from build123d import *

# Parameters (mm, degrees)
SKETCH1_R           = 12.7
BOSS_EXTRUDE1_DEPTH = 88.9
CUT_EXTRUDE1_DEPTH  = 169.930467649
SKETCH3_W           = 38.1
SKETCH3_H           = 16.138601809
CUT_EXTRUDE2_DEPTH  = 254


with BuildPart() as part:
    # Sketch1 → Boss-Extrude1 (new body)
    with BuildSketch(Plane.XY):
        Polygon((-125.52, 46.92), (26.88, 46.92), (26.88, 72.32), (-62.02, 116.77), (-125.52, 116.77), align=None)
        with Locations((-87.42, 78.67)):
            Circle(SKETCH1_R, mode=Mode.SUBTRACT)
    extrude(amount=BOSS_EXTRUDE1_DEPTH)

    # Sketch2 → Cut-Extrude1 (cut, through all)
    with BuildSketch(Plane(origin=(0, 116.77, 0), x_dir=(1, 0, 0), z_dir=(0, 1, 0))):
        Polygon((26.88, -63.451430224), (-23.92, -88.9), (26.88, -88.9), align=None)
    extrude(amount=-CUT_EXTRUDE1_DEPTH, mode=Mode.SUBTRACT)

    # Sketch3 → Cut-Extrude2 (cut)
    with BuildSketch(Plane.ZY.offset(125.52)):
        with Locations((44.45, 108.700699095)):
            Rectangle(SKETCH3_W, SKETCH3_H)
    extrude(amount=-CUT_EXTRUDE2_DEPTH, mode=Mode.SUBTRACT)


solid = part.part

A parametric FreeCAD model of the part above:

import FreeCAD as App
import Part
import Sketcher
from FreeCAD import Vector
Q = App.Units.Quantity


def add_polygon(sketch, points):
    """Adds a closed chain of lines whose ends are joined by coincident constraints."""
    first, n = sketch.GeometryCount, len(points)
    for a, b in zip(points, points[1:] + points[:1]):
        sketch.addGeometry(Part.LineSegment(App.Vector(*a, 0), App.Vector(*b, 0)), False)
    for i in range(n):
        sketch.addConstraint(Sketcher.Constraint("Coincident", first + i, 2, first + (i + 1) % n, 1))

doc = App.newDocument("Part")
body = doc.addObject("PartDesign::Body", "Body")

# Sketch on XY plane
sketch1 = doc.addObject("Sketcher::SketchObject", "Sketch")
body.addObject(sketch1)
sketch1.AttachmentSupport = (doc.XY_Plane, [""])
sketch1.MapMode = "FlatFace"
add_polygon(sketch1, [(-125.52, 46.92), (26.88, 46.92), (26.88, 72.32), (-62.02, 116.77), (-125.52, 116.77)])  # lines 0-4
sketch1.addGeometry(Part.Circle(Vector(-87.42, 78.67, 0), Vector(0, 0, 1), 12.7), False)  # 5
sketch1.addConstraint([
    Sketcher.Constraint("Horizontal", 0),
    Sketcher.Constraint("Vertical", 1),
    Sketcher.Constraint("Horizontal", 3),
    Sketcher.Constraint("Vertical", 4),
    Sketcher.Constraint("Diameter", 5, Q("1 in")),
    Sketcher.Constraint("DistanceX", 0, 1, 0, 2, Q("6 in")),
    Sketcher.Constraint("DistanceY", 1, 1, 1, 2, Q("1 in")),
    Sketcher.Constraint("DistanceX", 3, 2, 3, 1, Q("2.5 in")),
    Sketcher.Constraint("DistanceX", 5, 3, 2, 2, Q("1 in")),
    Sketcher.Constraint("DistanceY", 4, 2, 4, 1, Q("2.75 in")),
    Sketcher.Constraint("DistanceY", 5, 3, 2, 2, Q("1.5 in")),
    Sketcher.Constraint("DistanceX", 5, 3, -1, 1, 87.42),
    Sketcher.Constraint("DistanceY", -1, 1, 5, 3, 78.67),
])
pad1 = doc.addObject("PartDesign::Pad", "Pad")
body.addObject(pad1)
pad1.Profile = sketch1
pad1.Length = Q("3.5 in")

# Sketch on XZ plane
sketch2 = doc.addObject("Sketcher::SketchObject", "Sketch001")
body.addObject(sketch2)
sketch2.AttachmentSupport = (doc.XZ_Plane, [""])
sketch2.MapMode = "FlatFace"
sketch2.AttachmentOffset = App.Placement(Vector(0, 0, -116.77), App.Rotation())
add_polygon(sketch2, [(26.88, 63.45143), (-23.92, 88.9), (26.88, 88.9)])  # lines 0-2
sketch2.addConstraint([
    Sketcher.Constraint("Horizontal", 1),
    Sketcher.Constraint("Vertical", 2),
    Sketcher.Constraint("DistanceX", 1, 1, 1, 2, Q("2 in")),
    Sketcher.Constraint("DistanceY", -1, 1, 0, 2, Q("3.5 in")),
    Sketcher.Constraint("DistanceY", 2, 2, 2, 1, 25.44857),
    Sketcher.Constraint("DistanceX", 0, 2, -1, 1, 23.92),
])
pocket1 = doc.addObject("PartDesign::Pocket", "Pocket")
body.addObject(pocket1)
pocket1.Profile = sketch2
pocket1.Type = "ThroughAll"
pocket1.Reversed = True

# Sketch on YZ plane
sketch3 = doc.addObject("Sketcher::SketchObject", "Sketch002")
body.addObject(sketch3)
sketch3.AttachmentSupport = (doc.YZ_Plane, [""])
sketch3.MapMode = "FlatFace"
sketch3.AttachmentOffset = App.Placement(Vector(0, 0, -125.52), App.Rotation())
add_polygon(sketch3, [(116.77, 25.4), (100.631398, 25.4), (100.631398, 63.5), (116.77, 63.5)])  # lines 0-3
sketch3.addConstraint([
    Sketcher.Constraint("Horizontal", 0),
    Sketcher.Constraint("Vertical", 1),
    Sketcher.Constraint("Horizontal", 2),
    Sketcher.Constraint("Vertical", 3),
    Sketcher.Constraint("DistanceY", 1, 1, 1, 2, Q("1.5 in")),
    Sketcher.Constraint("DistanceY", -1, 1, 0, 2, Q("1 in")),
    Sketcher.Constraint("DistanceX", 0, 2, 0, 1, 16.138602),
    Sketcher.Constraint("DistanceX", -1, 1, 0, 2, 100.631398),
])
pocket2 = doc.addObject("PartDesign::Pocket", "Pocket001")
body.addObject(pocket2)
pocket2.Profile = sketch3
pocket2.Length = Q("10 in")
pocket2.Reversed = True

doc.recompute()
